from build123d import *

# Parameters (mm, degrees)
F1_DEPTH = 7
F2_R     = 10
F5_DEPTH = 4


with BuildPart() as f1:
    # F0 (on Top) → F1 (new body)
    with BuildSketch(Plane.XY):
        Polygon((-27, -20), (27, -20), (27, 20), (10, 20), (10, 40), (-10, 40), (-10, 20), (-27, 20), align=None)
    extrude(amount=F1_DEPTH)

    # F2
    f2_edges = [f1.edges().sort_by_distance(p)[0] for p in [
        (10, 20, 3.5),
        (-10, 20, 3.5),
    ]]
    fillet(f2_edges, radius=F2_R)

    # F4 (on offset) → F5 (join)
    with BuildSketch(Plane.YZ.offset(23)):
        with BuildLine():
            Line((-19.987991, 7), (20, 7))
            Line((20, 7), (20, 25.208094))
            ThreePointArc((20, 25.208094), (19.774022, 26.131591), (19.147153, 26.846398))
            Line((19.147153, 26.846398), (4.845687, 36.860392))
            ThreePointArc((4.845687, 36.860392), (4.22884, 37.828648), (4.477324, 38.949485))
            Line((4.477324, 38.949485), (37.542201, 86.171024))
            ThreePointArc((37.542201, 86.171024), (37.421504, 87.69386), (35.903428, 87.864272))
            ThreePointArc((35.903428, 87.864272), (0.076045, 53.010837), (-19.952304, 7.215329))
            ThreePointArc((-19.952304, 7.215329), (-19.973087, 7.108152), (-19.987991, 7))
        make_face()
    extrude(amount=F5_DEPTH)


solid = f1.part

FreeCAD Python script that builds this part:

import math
import FreeCAD as App
import Part
import Sketcher

V = App.Vector
Q = App.Units.Quantity


def edges_at(feature, points):
    """Names of the edges that pass closest to the given points."""
    edges = feature.Shape.Edges
    near = lambda p: min(range(len(edges)), key=lambda i: edges[i].distToShape(Part.Vertex(*p))[0])
    return sorted({f"Edge{near(p) + 1}" for p in points})

doc = App.newDocument("Part")
body = doc.addObject("PartDesign::Body", "Body")

# Sketch on XY plane
sketch1 = body.newObject("Sketcher::SketchObject", "Sketch")
sketch1.AttachmentSupport = (doc.getObject("XY_Plane"), [""])
sketch1.MapMode = "FlatFace"
sketch1.addGeometry([
    Part.LineSegment(V(-27, -20, 0), V(27, -20, 0)),  # 0
    Part.LineSegment(V(27, -20, 0), V(27, 20, 0)),  # 1
    Part.LineSegment(V(27, 20, 0), V(10, 20, 0)),  # 2
    Part.LineSegment(V(10, 20, 0), V(10, 40, 0)),  # 3
    Part.LineSegment(V(10, 40, 0), V(-10, 40, 0)),  # 4
    Part.LineSegment(V(-10, 40, 0), V(-10, 20, 0)),  # 5
    Part.LineSegment(V(-10, 20, 0), V(-27, 20, 0)),  # 6
    Part.LineSegment(V(-27, 20, 0), V(-27, -20, 0)),  # 7
], False)
sketch1.addConstraint([
    Sketcher.Constraint("Coincident", 0, 2, 1, 1),
    Sketcher.Constraint("Coincident", 1, 2, 2, 1),
    Sketcher.Constraint("Coincident", 2, 2, 3, 1),
    Sketcher.Constraint("Coincident", 3, 2, 4, 1),
    Sketcher.Constraint("Coincident", 4, 2, 5, 1),
    Sketcher.Constraint("Coincident", 5, 2, 6, 1),
    Sketcher.Constraint("Coincident", 6, 2, 7, 1),
    Sketcher.Constraint("Coincident", 7, 2, 0, 1),
    Sketcher.Constraint("Horizontal", 0),
    Sketcher.Constraint("Vertical", 1),
    Sketcher.Constraint("Horizontal", 2),
    Sketcher.Constraint("Vertical", 3),
    Sketcher.Constraint("Horizontal", 4),
    Sketcher.Constraint("Vertical", 5),
    Sketcher.Constraint("Horizontal", 6),
    Sketcher.Constraint("Vertical", 7),
    Sketcher.Constraint("Symmetric", 0, 2, 6, 2, -1, 1),
    Sketcher.Constraint("Symmetric", 2, 2, 5, 2, -2),
    Sketcher.Constraint("Equal", 4, 3),
    Sketcher.Constraint("DistanceX", 0, 1, 0, 2, Q("54 mm")),
    Sketcher.Constraint("DistanceX", 2, 2, 2, 1, Q("17 mm")),
    Sketcher.Constraint("DistanceY", 1, 1, 1, 2, Q("40 mm")),
])
pad1 = body.newObject("PartDesign::Pad", "Pad")
pad1.Profile = sketch1
pad1.Length = 7
doc.recompute()

fillet = body.newObject("PartDesign::Fillet", "Fillet")
fillet.Base = (pad1, edges_at(pad1, [(10, 20, 3.5), (-10, 20, 3.5)]))
fillet.Radius = 10

# Sketch on YZ plane
sketch2 = body.newObject("Sketcher::SketchObject", "Sketch001")
sketch2.AttachmentSupport = (doc.getObject("YZ_Plane"), [""])
sketch2.MapMode = "FlatFace"
sketch2.AttachmentOffset = App.Placement(V(0, 0, 23), App.Rotation())
sketch2.addGeometry([
    Part.LineSegment(V(-19.987991, 7, 0), V(20, 7, 0)),  # 0
    Part.LineSegment(V(20, 7, 0), V(20, 25.208094, 0)),  # 1
    Part.ArcOfCircle(Part.Circle(V(18.000001, 25.208095, 0), V(0, 0, 1), 1.999999), math.radians(-0.000022), math.radians(55.000018)),  # 2
    Part.LineSegment(V(19.147153, 26.846398, 0), V(4.845687, 36.860392, 0)),  # 3
    Part.ArcOfCircle(Part.Circle(V(5.706051, 38.08912, 0), V(0, 0, 1), 1.5), math.radians(144.999972), math.radians(235.000004)),  # 4
    Part.LineSegment(V(4.477324, 38.949485, 0), V(37.542201, 86.171024, 0)),  # 5
    Part.ArcOfCircle(Part.Circle(V(36.559219, 86.859316, 0), V(0, 0, 1), 1.2), math.radians(-35.000025), math.radians(123.126742)),  # 6
    Part.ArcOfCircle(Part.Circle(V(106.947475, -21.006029, 0), V(0, 0, 1), 129.999996), math.radians(123.126728), math.radians(167.461982)),  # 7
    Part.ArcOfCircle(Part.Circle(V(-17.999949, 6.781139, 0), V(0, 0, 1), 2.000052), math.radians(167.461861), math.radians(173.717671)),  # 8
], False)
sketch2.addConstraint([
    Sketcher.Constraint("Coincident", 0, 2, 1, 1),
    Sketcher.Constraint("Tangent", 1, 2, 2, 1),
    Sketcher.Constraint("Tangent", 2, 2, 3, 1),
    Sketcher.Constraint("Tangent", 3, 2, 4, 2),
    Sketcher.Constraint("Tangent", 4, 1, 5, 1),
    Sketcher.Constraint("Tangent", 5, 2, 6, 1),
    Sketcher.Constraint("Tangent", 6, 2, 7, 1),
    Sketcher.Constraint("Coincident", 7, 2, 8, 1),
    Sketcher.Constraint("Coincident", 8, 2, 0, 1),
    Sketcher.Constraint("Horizontal", 0),
    Sketcher.Constraint("Vertical", 1),
    Sketcher.Constraint("Perpendicular", 3, 5),
    Sketcher.Constraint("Radius", 2, Q("1.999999 mm")),
    Sketcher.Constraint("Radius", 4, Q("1.5 mm")),
    Sketcher.Constraint("Radius", 6, Q("1.2 mm")),
    Sketcher.Constraint("Angle", 3, Q("145.000001 deg")),
    Sketcher.Constraint("DistanceX", -1, 1, 2, 3, Q("18.000001 mm")),
    Sketcher.Constraint("DistanceY", -1, 1, 0, 2, Q("7 mm")),
    Sketcher.Constraint("Radius", 7, Q("129.999996 mm")),
    Sketcher.Constraint("Radius", 8, Q("2.000052 mm")),
    Sketcher.Constraint("DistanceX", 8, 3, 4, 3, Q("23.706001 mm")),
    Sketcher.Constraint("DistanceX", 0, 1, 0, 2, Q("39.987991 mm")),
    Sketcher.Constraint("DistanceY", -1, 1, 2, 2, Q("26.846398 mm")),
    Sketcher.Constraint("DistanceX", -1, 1, 5, 2, Q("37.542201 mm")),
    Sketcher.Constraint("DistanceX", 4, 3, 2, 2, Q("13.441102 mm")),
    Sketcher.Constraint("DistanceY", -1, 1, 7, 2, Q("7.215329 mm")),
])
pad2 = body.newObject("PartDesign::Pad", "Pad001")
pad2.Profile = sketch2
pad2.Length = 4

doc.recompute()
